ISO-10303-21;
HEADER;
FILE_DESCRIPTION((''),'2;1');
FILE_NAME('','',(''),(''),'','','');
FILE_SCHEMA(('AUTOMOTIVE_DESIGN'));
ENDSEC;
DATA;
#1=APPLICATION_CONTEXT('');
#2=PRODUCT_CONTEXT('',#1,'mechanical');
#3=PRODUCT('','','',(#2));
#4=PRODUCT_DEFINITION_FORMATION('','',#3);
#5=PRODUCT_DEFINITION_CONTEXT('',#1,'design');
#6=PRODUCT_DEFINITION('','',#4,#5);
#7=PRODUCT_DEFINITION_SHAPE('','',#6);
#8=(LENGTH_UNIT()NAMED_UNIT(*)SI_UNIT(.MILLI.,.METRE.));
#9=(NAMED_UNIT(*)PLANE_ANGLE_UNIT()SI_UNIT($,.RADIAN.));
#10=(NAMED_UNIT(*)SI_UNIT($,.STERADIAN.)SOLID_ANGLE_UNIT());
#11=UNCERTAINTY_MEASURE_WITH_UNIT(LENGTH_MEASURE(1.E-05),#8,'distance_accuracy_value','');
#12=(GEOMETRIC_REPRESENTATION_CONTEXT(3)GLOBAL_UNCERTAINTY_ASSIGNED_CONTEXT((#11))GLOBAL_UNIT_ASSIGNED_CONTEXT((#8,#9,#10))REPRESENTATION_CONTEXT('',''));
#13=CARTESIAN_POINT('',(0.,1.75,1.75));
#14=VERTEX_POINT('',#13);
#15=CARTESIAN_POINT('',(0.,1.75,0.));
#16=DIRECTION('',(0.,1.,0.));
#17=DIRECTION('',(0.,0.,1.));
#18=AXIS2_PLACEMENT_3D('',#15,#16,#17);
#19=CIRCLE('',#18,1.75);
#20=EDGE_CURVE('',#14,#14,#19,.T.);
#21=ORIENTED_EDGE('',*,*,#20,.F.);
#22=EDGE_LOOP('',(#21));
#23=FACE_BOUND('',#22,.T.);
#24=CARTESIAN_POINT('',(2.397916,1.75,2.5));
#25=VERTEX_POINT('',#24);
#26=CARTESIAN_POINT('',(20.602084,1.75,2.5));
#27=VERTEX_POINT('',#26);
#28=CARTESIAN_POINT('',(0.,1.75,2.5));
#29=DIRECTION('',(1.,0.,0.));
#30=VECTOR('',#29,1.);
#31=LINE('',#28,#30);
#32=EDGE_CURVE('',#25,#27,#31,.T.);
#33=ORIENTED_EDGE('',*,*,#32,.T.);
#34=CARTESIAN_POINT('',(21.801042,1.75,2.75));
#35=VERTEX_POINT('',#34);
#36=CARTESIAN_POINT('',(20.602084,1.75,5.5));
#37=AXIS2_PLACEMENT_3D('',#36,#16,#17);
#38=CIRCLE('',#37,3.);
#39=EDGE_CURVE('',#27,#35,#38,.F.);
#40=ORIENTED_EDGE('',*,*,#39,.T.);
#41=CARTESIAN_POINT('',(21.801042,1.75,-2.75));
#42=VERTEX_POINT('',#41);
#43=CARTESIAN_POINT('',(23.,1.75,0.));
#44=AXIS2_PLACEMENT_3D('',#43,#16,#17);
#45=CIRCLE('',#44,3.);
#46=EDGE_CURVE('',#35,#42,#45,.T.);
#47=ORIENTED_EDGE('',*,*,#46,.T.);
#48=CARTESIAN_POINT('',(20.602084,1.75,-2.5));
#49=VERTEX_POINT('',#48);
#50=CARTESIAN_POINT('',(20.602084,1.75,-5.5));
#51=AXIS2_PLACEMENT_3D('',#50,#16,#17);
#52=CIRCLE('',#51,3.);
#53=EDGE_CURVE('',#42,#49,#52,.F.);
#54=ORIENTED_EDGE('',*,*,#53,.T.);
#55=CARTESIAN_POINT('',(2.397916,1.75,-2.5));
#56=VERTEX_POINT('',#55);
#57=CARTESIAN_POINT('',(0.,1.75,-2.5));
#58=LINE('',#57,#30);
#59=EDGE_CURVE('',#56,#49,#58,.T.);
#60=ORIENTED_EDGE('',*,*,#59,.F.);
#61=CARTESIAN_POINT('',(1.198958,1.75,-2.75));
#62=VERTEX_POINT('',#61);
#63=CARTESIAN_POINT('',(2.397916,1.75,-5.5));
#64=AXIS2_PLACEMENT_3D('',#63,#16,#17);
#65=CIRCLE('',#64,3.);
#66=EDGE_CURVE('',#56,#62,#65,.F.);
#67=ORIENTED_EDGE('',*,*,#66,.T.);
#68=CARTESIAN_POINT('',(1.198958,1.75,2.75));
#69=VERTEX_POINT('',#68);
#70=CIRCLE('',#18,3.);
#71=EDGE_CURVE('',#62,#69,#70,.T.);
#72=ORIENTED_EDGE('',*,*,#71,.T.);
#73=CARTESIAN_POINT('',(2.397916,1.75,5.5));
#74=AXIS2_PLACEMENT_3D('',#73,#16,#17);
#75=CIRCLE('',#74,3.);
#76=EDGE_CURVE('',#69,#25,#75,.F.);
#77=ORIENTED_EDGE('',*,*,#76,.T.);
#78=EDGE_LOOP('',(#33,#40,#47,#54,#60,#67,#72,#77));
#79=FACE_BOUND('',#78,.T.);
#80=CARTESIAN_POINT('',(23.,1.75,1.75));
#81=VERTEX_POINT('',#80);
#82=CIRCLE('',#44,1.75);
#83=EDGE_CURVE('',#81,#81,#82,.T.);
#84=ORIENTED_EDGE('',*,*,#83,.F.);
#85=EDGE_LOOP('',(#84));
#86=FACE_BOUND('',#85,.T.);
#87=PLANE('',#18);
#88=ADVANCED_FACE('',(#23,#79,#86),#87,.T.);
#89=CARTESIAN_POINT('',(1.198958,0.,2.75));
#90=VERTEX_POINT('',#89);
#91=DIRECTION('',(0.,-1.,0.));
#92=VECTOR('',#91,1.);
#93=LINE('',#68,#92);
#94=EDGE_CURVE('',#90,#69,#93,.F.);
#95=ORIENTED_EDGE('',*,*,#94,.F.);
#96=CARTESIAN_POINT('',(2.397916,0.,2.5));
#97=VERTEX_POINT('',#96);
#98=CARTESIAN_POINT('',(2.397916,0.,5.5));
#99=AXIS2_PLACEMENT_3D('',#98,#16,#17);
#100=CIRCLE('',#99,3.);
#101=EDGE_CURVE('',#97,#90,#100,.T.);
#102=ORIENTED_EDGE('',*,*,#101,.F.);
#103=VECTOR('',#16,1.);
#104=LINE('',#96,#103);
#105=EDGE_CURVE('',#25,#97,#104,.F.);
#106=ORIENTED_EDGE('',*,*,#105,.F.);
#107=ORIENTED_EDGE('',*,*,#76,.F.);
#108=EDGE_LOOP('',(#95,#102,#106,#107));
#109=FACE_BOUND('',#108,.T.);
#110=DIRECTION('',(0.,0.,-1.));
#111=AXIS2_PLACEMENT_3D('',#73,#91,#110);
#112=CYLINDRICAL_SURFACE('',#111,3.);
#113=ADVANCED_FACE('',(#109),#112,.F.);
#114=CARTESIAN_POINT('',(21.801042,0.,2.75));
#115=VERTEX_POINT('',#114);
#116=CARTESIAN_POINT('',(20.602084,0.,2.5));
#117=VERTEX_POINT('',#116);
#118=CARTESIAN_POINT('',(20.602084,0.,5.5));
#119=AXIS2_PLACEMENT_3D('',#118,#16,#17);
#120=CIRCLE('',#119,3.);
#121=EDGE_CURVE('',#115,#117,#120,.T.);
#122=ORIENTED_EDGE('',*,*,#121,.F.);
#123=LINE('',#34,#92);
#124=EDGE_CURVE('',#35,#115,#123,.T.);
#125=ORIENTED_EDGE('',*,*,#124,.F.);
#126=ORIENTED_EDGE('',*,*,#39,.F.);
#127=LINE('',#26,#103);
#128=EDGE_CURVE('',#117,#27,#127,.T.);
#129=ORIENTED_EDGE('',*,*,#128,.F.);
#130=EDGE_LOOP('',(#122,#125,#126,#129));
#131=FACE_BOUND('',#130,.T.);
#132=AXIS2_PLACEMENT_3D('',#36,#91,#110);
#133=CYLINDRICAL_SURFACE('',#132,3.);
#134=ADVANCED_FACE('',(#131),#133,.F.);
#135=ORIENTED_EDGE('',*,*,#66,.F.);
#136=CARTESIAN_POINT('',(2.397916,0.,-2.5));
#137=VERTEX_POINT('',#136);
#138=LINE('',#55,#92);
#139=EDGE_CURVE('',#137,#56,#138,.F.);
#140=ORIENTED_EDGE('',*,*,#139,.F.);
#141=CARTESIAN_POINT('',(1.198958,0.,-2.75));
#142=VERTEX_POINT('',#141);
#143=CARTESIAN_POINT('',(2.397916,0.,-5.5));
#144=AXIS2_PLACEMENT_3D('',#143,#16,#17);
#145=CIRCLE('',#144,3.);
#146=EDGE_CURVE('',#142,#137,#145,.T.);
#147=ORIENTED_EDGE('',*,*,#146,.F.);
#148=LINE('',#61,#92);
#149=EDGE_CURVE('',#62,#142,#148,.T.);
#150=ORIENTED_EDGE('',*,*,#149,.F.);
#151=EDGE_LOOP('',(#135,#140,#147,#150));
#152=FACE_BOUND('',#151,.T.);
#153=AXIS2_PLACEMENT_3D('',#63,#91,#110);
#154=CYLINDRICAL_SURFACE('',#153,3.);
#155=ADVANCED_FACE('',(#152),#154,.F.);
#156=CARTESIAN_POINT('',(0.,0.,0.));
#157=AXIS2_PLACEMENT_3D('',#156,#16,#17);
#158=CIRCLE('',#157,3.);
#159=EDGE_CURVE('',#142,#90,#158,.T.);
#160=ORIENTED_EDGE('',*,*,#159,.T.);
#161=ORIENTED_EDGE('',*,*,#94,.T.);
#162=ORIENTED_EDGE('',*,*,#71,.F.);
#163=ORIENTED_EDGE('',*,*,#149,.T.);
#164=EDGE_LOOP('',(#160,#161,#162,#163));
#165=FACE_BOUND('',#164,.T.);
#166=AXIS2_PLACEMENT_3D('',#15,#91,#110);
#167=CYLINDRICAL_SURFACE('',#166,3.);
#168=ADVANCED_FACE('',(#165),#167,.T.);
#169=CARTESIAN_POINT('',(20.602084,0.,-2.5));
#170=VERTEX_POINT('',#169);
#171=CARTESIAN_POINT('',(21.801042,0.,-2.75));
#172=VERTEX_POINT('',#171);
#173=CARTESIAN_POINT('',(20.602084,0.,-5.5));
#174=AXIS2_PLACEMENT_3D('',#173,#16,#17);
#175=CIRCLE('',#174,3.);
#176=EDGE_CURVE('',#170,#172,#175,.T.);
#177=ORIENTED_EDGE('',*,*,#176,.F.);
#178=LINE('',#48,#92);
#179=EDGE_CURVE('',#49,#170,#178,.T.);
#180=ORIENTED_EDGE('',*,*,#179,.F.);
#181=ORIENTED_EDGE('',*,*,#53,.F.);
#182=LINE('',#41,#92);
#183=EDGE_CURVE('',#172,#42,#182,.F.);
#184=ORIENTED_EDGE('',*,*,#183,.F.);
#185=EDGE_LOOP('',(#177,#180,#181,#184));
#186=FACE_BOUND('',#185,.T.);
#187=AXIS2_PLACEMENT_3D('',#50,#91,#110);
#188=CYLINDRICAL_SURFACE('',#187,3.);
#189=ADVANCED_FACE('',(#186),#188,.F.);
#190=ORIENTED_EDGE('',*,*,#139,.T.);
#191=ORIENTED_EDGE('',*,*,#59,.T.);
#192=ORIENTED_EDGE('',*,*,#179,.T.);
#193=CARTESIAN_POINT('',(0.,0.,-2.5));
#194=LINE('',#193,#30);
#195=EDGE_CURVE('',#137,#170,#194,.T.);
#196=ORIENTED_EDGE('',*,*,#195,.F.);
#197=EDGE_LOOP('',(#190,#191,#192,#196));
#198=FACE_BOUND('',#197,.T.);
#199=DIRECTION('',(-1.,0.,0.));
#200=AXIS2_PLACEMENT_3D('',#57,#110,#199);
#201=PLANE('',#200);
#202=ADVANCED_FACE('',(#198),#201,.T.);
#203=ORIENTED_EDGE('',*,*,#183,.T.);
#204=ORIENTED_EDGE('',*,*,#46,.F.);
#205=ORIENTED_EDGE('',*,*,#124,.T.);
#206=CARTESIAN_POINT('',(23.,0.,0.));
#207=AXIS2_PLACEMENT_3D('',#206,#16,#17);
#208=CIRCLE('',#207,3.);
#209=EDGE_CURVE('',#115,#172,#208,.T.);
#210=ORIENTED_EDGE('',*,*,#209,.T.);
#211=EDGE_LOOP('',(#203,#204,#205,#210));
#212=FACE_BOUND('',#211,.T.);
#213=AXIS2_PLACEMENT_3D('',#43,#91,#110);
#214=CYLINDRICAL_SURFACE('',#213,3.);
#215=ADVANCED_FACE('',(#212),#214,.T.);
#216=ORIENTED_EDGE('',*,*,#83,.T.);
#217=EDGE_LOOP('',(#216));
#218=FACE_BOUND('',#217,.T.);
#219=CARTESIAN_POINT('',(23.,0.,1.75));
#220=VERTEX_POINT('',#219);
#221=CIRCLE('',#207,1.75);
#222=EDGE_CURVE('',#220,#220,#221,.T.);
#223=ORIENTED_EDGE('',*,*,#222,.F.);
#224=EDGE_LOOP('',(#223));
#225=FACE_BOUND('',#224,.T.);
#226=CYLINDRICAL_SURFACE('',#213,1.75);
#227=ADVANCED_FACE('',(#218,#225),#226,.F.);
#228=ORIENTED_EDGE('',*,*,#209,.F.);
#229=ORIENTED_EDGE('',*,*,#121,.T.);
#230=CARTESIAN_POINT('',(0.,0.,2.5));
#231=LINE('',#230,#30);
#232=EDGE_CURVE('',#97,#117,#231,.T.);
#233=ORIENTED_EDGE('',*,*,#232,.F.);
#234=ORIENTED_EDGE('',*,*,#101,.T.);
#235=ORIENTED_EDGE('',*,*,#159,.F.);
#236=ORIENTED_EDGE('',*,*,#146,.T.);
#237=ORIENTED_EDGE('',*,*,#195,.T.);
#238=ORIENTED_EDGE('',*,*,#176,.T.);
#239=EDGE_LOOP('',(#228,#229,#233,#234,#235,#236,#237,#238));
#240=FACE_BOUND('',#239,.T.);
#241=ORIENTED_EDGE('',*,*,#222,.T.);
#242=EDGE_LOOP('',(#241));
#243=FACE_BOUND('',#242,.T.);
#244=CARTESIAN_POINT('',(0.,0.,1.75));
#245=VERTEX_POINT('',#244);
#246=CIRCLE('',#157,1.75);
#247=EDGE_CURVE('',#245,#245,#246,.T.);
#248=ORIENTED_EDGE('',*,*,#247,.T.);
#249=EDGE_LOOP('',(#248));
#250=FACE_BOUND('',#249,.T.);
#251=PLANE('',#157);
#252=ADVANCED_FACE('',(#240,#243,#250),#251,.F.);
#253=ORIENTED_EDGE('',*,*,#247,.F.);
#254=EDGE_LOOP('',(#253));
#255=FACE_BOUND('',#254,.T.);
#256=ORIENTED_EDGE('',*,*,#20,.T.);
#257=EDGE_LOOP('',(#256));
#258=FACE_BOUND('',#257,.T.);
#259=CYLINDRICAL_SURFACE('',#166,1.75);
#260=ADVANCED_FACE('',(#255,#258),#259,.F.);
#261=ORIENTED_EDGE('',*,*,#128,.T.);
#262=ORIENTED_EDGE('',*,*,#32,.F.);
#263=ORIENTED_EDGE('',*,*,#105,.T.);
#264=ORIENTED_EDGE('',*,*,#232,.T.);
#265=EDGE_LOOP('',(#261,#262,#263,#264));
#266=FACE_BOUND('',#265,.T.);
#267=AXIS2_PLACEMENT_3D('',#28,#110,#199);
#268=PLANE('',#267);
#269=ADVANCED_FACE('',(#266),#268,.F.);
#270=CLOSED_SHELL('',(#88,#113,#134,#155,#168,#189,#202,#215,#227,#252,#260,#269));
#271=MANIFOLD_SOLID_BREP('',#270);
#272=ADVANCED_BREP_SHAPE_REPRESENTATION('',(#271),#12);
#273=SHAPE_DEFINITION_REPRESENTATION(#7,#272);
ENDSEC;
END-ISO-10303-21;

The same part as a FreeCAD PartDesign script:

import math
import FreeCAD as App
import Part
import Sketcher
Q = App.Units.Quantity


def edges_at(feature, points):
    """Names of the edges that pass closest to the given points."""
    edges = feature.Shape.Edges
    near = lambda p: min(range(len(edges)), key=lambda i: edges[i].distToShape(Part.Vertex(*p))[0])
    return sorted({f"Edge{near(p) + 1}" for p in points})

doc = App.newDocument("Part")
body = doc.addObject("PartDesign::Body", "Body")

sketch1 = body.newObject("Sketcher::SketchObject", "Sketch")
sketch1.AttachmentSupport = (doc.getObject("XZ_Plane"), [""])
sketch1.MapMode = "FlatFace"
sketch1.addGeometry([
    Part.ArcOfCircle(Part.Circle(App.Vector(0, 0, 0), App.Vector(0, 0, 1), 3), math.radians(56), math.radians(304)),
    Part.LineSegment(App.Vector(1.7, 2.5, 0), App.Vector(21.3, 2.5, 0)),
    Part.ArcOfCircle(Part.Circle(App.Vector(23, 0, 0), App.Vector(0, 0, 1), 3), math.radians(-124), math.radians(124)),
    Part.LineSegment(App.Vector(21.3, -2.5, 0), App.Vector(1.7, -2.5, 0)),
    Part.Circle(App.Vector(0, 0, 0), App.Vector(0, 0, 1), 1.8),
    Part.Circle(App.Vector(23, 0, 0), App.Vector(0, 0, 1), 1.8),
], False)
sketch1.addConstraint([
    Sketcher.Constraint("Coincident", 0, 1, 1, 1),
    Sketcher.Constraint("Coincident", 1, 2, 2, 2),
    Sketcher.Constraint("Coincident", 2, 1, 3, 1),
    Sketcher.Constraint("Coincident", 3, 2, 0, 2),
    Sketcher.Constraint("Horizontal", 1),
    Sketcher.Constraint("Horizontal", 3),
    Sketcher.Constraint("Coincident", 0, 3, -1, 1),
    Sketcher.Constraint("Coincident", 4, 3, -1, 1),
    Sketcher.Constraint("Coincident", 5, 3, 2, 3),
    Sketcher.Constraint("Equal", 0, 2),
    Sketcher.Constraint("Equal", 4, 5),
    Sketcher.Constraint("Symmetric", 1, 2, 2, 1, -1),
    Sketcher.Constraint("Radius", 0, Q("3 mm")),
    Sketcher.Constraint("Diameter", 4, Q("3.5 mm")),
    Sketcher.Constraint("DistanceX", -1, 1, 2, 3, Q("23 mm")),
    Sketcher.Constraint("DistanceY", 2, 1, 1, 2, Q("5 mm")),
])
pad1 = body.newObject("PartDesign::Pad", "Pad")
pad1.Profile = sketch1
pad1.Length = 1.75
pad1.Reversed = True
doc.recompute()

fillet = body.newObject("PartDesign::Fillet", "Fillet")
fillet.Base = (pad1, edges_at(pad1, [
    (21.342, 0.875, 2.5),
    (1.658, 0.875, 2.5),
    (1.658, 0.875, -2.5),
    (21.342, 0.875, -2.5),
]))
fillet.Radius = 3

doc.recompute()
